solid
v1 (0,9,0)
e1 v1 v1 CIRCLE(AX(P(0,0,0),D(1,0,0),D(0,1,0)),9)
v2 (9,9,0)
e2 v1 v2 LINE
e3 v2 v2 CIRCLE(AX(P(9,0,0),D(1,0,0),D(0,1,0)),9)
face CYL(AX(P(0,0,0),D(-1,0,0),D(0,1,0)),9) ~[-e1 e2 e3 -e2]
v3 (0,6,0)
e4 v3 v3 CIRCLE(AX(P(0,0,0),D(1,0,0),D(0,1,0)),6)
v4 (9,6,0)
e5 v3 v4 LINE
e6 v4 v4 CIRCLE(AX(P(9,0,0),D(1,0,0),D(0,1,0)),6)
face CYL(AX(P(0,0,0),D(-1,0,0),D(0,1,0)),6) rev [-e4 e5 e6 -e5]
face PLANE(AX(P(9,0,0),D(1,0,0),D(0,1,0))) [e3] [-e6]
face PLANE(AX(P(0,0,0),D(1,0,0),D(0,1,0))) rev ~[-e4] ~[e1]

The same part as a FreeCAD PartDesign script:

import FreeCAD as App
import Part
import Sketcher
from FreeCAD import Vector
Q = App.Units.Quantity

doc = App.newDocument("Part")
body = doc.addObject("PartDesign::Body", "Body")

sketch1 = body.newObject("Sketcher::SketchObject", "Sketch")
sketch1.AttachmentSupport = (doc.getObject("YZ_Plane"), [""])
sketch1.MapMode = "FlatFace"
sketch1.addGeometry([
    Part.Circle(Vector(0, 0, 0), Vector(0, 0, 1), 9),
    Part.Circle(Vector(0, 0, 0), Vector(0, 0, 1), 6),
], False)
sketch1.addConstraint([
    Sketcher.Constraint("Coincident", 0, 3, -1, 1),
    Sketcher.Constraint("Coincident", 1, 3, -1, 1),
    Sketcher.Constraint("Diameter", 0, Q("18 mm")),
    Sketcher.Constraint("Diameter", 1, Q("12 mm")),
])
pad1 = body.newObject("PartDesign::Pad", "Pad")
pad1.Profile = sketch1
pad1.Length = 9

doc.recompute()
